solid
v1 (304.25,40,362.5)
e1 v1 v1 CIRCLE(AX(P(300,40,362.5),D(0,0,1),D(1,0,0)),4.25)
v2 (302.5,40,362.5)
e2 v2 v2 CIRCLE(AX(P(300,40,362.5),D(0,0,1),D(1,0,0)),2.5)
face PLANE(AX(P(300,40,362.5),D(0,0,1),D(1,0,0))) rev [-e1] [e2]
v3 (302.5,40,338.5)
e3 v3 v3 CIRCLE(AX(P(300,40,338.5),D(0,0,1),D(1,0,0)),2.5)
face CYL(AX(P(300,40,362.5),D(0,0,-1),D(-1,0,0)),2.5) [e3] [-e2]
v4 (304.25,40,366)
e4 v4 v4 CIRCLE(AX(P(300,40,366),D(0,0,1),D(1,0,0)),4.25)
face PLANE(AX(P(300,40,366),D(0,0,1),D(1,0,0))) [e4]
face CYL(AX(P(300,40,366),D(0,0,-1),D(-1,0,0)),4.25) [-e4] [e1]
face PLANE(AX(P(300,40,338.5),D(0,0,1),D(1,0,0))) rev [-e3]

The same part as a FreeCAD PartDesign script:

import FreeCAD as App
import Part
import Sketcher
from FreeCAD import Vector

doc = App.newDocument("Part")
body = doc.addObject("PartDesign::Body", "Body")

sketch1 = doc.addObject("Sketcher::SketchObject", "Sketch")
body.addObject(sketch1)
sketch1.AttachmentSupport = (doc.XY_Plane, [""])
sketch1.MapMode = "FlatFace"
sketch1.AttachmentOffset = App.Placement(Vector(0, 0, 338.5), App.Rotation())
sketch1.addGeometry(Part.Circle(Vector(300, 40, 0), Vector(0, 0, 1), 2.5), False)
sketch1.addConstraint([
    Sketcher.Constraint("Diameter", 0, 5.0),
    Sketcher.Constraint("DistanceX", -1, 1, 0, 3, 300.0),
    Sketcher.Constraint("DistanceY", -1, 1, 0, 3, 40.0),
])
pad1 = doc.addObject("PartDesign::Pad", "Pad")
body.addObject(pad1)
pad1.Profile = sketch1
pad1.Length = 24

sketch2 = doc.addObject("Sketcher::SketchObject", "Sketch001")
body.addObject(sketch2)
sketch2.AttachmentSupport = (doc.XY_Plane, [""])
sketch2.MapMode = "FlatFace"
sketch2.AttachmentOffset = App.Placement(Vector(0, 0, 362.5), App.Rotation())
sketch2.addGeometry(Part.Circle(Vector(300, 40, 0), Vector(0, 0, 1), 4.2), False)
sketch2.addConstraint([
    Sketcher.Constraint("Diameter", 0, 8.5),
    Sketcher.Constraint("DistanceX", -1, 1, 0, 3, 300.0),
    Sketcher.Constraint("DistanceY", -1, 1, 0, 3, 40.0),
])
pad2 = doc.addObject("PartDesign::Pad", "Pad001")
body.addObject(pad2)
pad2.Profile = sketch2
pad2.Length = 3.5

doc.recompute()
